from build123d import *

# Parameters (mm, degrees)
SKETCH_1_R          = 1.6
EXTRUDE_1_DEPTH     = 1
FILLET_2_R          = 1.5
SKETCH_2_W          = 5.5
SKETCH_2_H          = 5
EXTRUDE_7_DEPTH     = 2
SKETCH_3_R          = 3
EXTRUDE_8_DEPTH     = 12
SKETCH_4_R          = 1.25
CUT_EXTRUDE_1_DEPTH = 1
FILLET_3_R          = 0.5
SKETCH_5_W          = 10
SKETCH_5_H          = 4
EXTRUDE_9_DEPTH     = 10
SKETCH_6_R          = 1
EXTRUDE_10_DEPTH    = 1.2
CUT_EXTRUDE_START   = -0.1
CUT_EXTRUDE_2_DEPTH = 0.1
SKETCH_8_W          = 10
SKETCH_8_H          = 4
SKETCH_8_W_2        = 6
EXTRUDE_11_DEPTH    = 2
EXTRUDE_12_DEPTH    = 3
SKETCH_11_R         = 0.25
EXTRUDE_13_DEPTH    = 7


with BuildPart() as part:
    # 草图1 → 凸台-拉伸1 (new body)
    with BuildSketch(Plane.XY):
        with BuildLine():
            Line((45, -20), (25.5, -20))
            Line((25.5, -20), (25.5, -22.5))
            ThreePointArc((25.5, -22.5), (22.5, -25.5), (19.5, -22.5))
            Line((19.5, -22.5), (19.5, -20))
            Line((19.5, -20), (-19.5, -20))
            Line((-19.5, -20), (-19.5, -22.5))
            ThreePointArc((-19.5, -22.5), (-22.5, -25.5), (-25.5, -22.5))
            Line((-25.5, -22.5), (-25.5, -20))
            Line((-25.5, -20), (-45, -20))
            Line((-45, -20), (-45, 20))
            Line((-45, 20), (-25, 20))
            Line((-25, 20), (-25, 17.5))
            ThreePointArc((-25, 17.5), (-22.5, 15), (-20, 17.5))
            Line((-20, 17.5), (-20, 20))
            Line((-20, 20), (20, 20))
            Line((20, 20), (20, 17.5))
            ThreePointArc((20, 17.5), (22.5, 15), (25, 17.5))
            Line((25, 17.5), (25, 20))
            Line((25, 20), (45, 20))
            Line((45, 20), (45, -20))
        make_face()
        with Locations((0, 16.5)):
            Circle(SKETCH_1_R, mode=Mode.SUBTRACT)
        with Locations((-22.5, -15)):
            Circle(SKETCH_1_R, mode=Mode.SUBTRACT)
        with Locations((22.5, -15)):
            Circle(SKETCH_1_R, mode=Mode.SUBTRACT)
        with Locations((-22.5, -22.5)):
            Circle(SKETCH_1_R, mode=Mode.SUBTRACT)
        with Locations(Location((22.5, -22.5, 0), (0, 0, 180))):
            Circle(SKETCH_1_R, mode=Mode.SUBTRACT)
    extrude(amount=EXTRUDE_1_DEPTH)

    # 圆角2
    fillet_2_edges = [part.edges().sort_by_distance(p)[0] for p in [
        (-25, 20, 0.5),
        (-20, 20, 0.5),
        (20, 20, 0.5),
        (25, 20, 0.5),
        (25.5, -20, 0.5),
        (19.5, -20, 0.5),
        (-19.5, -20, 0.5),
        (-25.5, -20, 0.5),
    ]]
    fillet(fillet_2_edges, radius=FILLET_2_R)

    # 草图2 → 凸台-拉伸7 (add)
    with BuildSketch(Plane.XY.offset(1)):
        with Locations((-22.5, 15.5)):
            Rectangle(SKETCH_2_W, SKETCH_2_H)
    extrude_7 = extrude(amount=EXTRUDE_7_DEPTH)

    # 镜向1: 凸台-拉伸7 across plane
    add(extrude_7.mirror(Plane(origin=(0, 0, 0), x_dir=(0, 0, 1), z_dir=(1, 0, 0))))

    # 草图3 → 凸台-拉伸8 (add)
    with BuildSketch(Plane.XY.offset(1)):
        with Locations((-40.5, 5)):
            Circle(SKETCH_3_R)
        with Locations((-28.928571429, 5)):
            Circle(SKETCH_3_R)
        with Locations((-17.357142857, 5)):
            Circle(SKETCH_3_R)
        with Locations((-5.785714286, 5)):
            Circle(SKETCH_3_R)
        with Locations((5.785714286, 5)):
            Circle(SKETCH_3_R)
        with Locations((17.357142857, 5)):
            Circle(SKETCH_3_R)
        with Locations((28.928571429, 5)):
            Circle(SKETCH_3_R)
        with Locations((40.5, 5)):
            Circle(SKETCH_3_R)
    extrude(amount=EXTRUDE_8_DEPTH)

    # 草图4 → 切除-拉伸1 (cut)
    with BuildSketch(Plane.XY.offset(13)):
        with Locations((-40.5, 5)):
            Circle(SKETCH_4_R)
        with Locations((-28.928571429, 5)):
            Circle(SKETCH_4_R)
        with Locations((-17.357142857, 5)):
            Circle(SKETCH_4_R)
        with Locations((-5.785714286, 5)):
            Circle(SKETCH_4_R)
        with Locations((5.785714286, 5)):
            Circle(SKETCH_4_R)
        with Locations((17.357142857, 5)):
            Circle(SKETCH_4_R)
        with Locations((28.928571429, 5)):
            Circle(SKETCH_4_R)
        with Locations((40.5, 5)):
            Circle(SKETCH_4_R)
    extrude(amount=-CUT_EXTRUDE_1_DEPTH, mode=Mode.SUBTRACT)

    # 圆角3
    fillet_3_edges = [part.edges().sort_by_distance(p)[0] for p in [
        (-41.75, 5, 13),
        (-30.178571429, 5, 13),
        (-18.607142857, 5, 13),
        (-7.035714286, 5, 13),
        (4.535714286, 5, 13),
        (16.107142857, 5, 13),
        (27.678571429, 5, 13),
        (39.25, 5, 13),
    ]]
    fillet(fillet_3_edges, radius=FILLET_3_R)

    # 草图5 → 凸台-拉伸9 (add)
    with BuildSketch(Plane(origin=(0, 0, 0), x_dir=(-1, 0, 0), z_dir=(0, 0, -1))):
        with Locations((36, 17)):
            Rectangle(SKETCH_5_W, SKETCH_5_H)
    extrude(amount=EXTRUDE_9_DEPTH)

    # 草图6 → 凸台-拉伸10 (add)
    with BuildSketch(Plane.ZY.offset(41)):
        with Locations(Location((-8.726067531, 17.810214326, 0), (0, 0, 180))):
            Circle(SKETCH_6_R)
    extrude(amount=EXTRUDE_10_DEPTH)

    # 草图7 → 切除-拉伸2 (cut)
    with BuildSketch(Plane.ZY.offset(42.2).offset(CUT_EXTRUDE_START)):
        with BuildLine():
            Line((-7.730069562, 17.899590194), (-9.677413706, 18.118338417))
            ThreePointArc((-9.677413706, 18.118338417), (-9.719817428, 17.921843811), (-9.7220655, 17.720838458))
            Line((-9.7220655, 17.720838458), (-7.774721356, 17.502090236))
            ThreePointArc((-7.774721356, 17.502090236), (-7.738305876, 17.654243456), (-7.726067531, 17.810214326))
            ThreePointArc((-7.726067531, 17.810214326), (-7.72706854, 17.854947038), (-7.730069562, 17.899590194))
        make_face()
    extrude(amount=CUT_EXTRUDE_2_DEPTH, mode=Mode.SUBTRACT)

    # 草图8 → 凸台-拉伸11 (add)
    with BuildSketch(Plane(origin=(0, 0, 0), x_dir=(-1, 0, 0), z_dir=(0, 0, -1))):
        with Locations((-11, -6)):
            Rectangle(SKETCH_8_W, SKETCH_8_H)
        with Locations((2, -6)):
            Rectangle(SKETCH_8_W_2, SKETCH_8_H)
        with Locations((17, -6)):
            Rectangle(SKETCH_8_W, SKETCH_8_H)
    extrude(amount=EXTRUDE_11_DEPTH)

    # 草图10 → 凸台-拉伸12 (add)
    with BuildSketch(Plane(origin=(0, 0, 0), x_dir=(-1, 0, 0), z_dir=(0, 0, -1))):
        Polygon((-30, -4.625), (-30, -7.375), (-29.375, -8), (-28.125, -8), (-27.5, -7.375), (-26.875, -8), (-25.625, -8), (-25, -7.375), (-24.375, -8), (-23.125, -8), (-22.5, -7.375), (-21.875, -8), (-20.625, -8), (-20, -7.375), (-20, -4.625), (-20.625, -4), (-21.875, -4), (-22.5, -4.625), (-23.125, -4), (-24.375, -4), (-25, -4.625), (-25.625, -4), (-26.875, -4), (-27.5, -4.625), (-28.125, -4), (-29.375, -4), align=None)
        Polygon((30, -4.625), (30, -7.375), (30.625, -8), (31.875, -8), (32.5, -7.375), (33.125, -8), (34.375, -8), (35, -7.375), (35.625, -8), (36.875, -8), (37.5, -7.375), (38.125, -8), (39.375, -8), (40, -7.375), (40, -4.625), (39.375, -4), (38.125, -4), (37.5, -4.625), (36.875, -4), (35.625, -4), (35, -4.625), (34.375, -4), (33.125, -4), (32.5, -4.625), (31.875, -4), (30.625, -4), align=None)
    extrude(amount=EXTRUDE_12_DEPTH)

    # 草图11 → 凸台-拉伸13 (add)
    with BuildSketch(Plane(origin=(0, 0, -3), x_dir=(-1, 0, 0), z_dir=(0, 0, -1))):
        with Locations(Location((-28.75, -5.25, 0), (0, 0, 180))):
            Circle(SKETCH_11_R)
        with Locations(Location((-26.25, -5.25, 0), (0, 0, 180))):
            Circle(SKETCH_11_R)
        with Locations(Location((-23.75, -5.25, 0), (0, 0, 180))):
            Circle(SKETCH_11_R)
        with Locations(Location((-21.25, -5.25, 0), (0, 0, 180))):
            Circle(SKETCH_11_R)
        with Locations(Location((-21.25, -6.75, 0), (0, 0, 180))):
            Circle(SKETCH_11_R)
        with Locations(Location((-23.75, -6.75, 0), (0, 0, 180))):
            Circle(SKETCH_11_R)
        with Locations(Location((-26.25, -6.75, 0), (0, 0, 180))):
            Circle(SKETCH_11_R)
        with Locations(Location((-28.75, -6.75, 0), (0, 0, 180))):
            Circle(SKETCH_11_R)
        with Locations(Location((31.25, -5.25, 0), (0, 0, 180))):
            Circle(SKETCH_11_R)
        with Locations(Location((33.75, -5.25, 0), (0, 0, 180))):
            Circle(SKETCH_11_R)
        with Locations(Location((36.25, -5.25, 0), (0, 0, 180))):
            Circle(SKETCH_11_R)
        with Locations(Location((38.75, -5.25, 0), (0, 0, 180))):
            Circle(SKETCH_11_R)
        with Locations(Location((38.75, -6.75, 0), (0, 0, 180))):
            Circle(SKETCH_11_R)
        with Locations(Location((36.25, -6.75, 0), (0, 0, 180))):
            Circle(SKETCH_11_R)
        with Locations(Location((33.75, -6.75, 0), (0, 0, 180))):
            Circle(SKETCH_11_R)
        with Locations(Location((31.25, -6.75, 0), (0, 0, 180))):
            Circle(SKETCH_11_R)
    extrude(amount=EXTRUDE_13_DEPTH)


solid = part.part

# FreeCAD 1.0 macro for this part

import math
import FreeCAD as App
import Part
import Sketcher

V = App.Vector
Q = App.Units.Quantity


def edges_at(feature, points):
    """Names of the edges that pass closest to the given points."""
    edges = feature.Shape.Edges
    near = lambda p: min(range(len(edges)), key=lambda i: edges[i].distToShape(Part.Vertex(*p))[0])
    return sorted({f"Edge{near(p) + 1}" for p in points})

doc = App.newDocument("Part")
body = doc.addObject("PartDesign::Body", "Body")

# Sketch on XY plane
sketch1 = doc.addObject("Sketcher::SketchObject", "Sketch")
body.addObject(sketch1)
sketch1.AttachmentSupport = (doc.XY_Plane, [""])
sketch1.MapMode = "FlatFace"
sketch1.addGeometry(Part.LineSegment(V(25.5, -20, 0), V(45, -20, 0)), False)
sketch1.addGeometry(Part.LineSegment(V(45, -20, 0), V(45, 20, 0)), False)
sketch1.addGeometry(Part.LineSegment(V(45, 20, 0), V(25, 20, 0)), False)
sketch1.addGeometry(Part.LineSegment(V(25, 20, 0), V(25, 17.5, 0)), False)
sketch1.addGeometry(Part.ArcOfCircle(Part.Circle(V(22.5, 17.5, 0), V(0, 0, 1), 2.5), math.radians(180), math.radians(360)), False)
sketch1.addGeometry(Part.LineSegment(V(20, 17.5, 0), V(20, 20, 0)), False)
sketch1.addGeometry(Part.LineSegment(V(20, 20, 0), V(-20, 20, 0)), False)
sketch1.addGeometry(Part.LineSegment(V(-20, 20, 0), V(-20, 17.5, 0)), False)
sketch1.addGeometry(Part.ArcOfCircle(Part.Circle(V(-22.5, 17.5, 0), V(0, 0, 1), 2.5), math.radians(180), math.radians(360)), False)
sketch1.addGeometry(Part.LineSegment(V(-25, 17.5, 0), V(-25, 20, 0)), False)
sketch1.addGeometry(Part.LineSegment(V(-25, 20, 0), V(-45, 20, 0)), False)
sketch1.addGeometry(Part.LineSegment(V(-45, 20, 0), V(-45, -20, 0)), False)
sketch1.addGeometry(Part.LineSegment(V(-45, -20, 0), V(-25.5, -20, 0)), False)
sketch1.addGeometry(Part.LineSegment(V(-25.5, -20, 0), V(-25.5, -22.5, 0)), False)
sketch1.addGeometry(Part.ArcOfCircle(Part.Circle(V(-22.5, -22.5, 0), V(0, 0, 1), 3), math.radians(180), math.radians(360)), False)
sketch1.addGeometry(Part.LineSegment(V(-19.5, -22.5, 0), V(-19.5, -20, 0)), False)
sketch1.addGeometry(Part.LineSegment(V(-19.5, -20, 0), V(19.5, -20, 0)), False)
sketch1.addGeometry(Part.LineSegment(V(19.5, -20, 0), V(19.5, -22.5, 0)), False)
sketch1.addGeometry(Part.ArcOfCircle(Part.Circle(V(22.5, -22.5, 0), V(0, 0, 1), 3), math.radians(180), math.radians(360)), False)
sketch1.addGeometry(Part.LineSegment(V(25.5, -22.5, 0), V(25.5, -20, 0)), False)
sketch1.addGeometry(Part.Circle(V(22.5, -22.5, 0), V(0, 0, 1), 1.6), False)
sketch1.addGeometry(Part.Circle(V(22.5, -15, 0), V(0, 0, 1), 1.6), False)
sketch1.addGeometry(Part.Circle(V(-22.5, -22.5, 0), V(0, 0, 1), 1.6), False)
sketch1.addGeometry(Part.Circle(V(-22.5, -15, 0), V(0, 0, 1), 1.6), False)
sketch1.addGeometry(Part.Circle(V(0, 16.5, 0), V(0, 0, 1), 1.6), False)
sketch1.addConstraint(Sketcher.Constraint("Coincident", 0, 2, 1, 1))
sketch1.addConstraint(Sketcher.Constraint("Coincident", 1, 2, 2, 1))
sketch1.addConstraint(Sketcher.Constraint("Coincident", 2, 2, 3, 1))
sketch1.addConstraint(Sketcher.Constraint("Tangent", 3, 2, 4, 2))
sketch1.addConstraint(Sketcher.Constraint("Tangent", 4, 1, 5, 1))
sketch1.addConstraint(Sketcher.Constraint("Coincident", 5, 2, 6, 1))
sketch1.addConstraint(Sketcher.Constraint("Coincident", 6, 2, 7, 1))
sketch1.addConstraint(Sketcher.Constraint("Tangent", 7, 2, 8, 2))
sketch1.addConstraint(Sketcher.Constraint("Tangent", 8, 1, 9, 1))
sketch1.addConstraint(Sketcher.Constraint("Coincident", 9, 2, 10, 1))
sketch1.addConstraint(Sketcher.Constraint("Coincident", 10, 2, 11, 1))
sketch1.addConstraint(Sketcher.Constraint("Coincident", 11, 2, 12, 1))
sketch1.addConstraint(Sketcher.Constraint("Coincident", 12, 2, 13, 1))
sketch1.addConstraint(Sketcher.Constraint("Tangent", 13, 2, 14, 1))
sketch1.addConstraint(Sketcher.Constraint("Tangent", 14, 2, 15, 1))
sketch1.addConstraint(Sketcher.Constraint("Coincident", 15, 2, 16, 1))
sketch1.addConstraint(Sketcher.Constraint("Coincident", 16, 2, 17, 1))
sketch1.addConstraint(Sketcher.Constraint("Tangent", 17, 2, 18, 1))
sketch1.addConstraint(Sketcher.Constraint("Tangent", 18, 2, 19, 1))
sketch1.addConstraint(Sketcher.Constraint("Coincident", 19, 2, 0, 1))
sketch1.addConstraint(Sketcher.Constraint("Horizontal", 0))
sketch1.addConstraint(Sketcher.Constraint("Vertical", 1))
sketch1.addConstraint(Sketcher.Constraint("Horizontal", 2))
sketch1.addConstraint(Sketcher.Constraint("Vertical", 3))
sketch1.addConstraint(Sketcher.Constraint("Vertical", 5))
sketch1.addConstraint(Sketcher.Constraint("Horizontal", 6))
sketch1.addConstraint(Sketcher.Constraint("Vertical", 7))
sketch1.addConstraint(Sketcher.Constraint("Vertical", 9))
sketch1.addConstraint(Sketcher.Constraint("Horizontal", 10))
sketch1.addConstraint(Sketcher.Constraint("Vertical", 11))
sketch1.addConstraint(Sketcher.Constraint("Horizontal", 12))
sketch1.addConstraint(Sketcher.Constraint("Vertical", 13))
sketch1.addConstraint(Sketcher.Constraint("Vertical", 15))
sketch1.addConstraint(Sketcher.Constraint("Horizontal", 16))
sketch1.addConstraint(Sketcher.Constraint("Vertical", 17))
sketch1.addConstraint(Sketcher.Constraint("Vertical", 19))
sketch1.addConstraint(Sketcher.Constraint("Coincident", 20, 3, 18, 3))
sketch1.addConstraint(Sketcher.Constraint("Coincident", 22, 3, 14, 3))
sketch1.addConstraint(Sketcher.Constraint("Equal", 4, 8))
sketch1.addConstraint(Sketcher.Constraint("Equal", 14, 18))
sketch1.addConstraint(Sketcher.Constraint("Equal", 20, 21))
sketch1.addConstraint(Sketcher.Constraint("Equal", 21, 22))
sketch1.addConstraint(Sketcher.Constraint("Equal", 22, 23))
sketch1.addConstraint(Sketcher.Constraint("Equal", 23, 24))
sketch1.addConstraint(Sketcher.Constraint("Symmetric", 0, 2, 10, 2, -1, 1))
sketch1.addConstraint(Sketcher.Constraint("Symmetric", 4, 3, 8, 3, -2))
sketch1.addConstraint(Sketcher.Constraint("Symmetric", 14, 3, 18, 3, -2))
sketch1.addConstraint(Sketcher.Constraint("Symmetric", 21, 3, 23, 3, -2))
sketch1.addConstraint(Sketcher.Constraint("PointOnObject", 24, 3, -2))
sketch1.addConstraint(Sketcher.Constraint("Horizontal", 2, 2, 5, 2))
sketch1.addConstraint(Sketcher.Constraint("Horizontal", 6, 2, 9, 2))
sketch1.addConstraint(Sketcher.Constraint("Horizontal", 0, 2, 11, 2))
sketch1.addConstraint(Sketcher.Constraint("Horizontal", 12, 2, 15, 2))
sketch1.addConstraint(Sketcher.Constraint("Vertical", 8, 3, 14, 3))
sketch1.addConstraint(Sketcher.Constraint("Vertical", 20, 3, 21, 3))
sketch1.addConstraint(Sketcher.Constraint("Equal", 6, 1))
sketch1.addConstraint(Sketcher.Constraint("Equal", 9, 13))
sketch1.addConstraint(Sketcher.Constraint("Radius", 14, Q("3 mm")))
sketch1.addConstraint(Sketcher.Constraint("Diameter", 20, Q("3.2 mm")))
sketch1.addConstraint(Sketcher.Constraint("Radius", 4, Q("2.5 mm")))
sketch1.addConstraint(Sketcher.Constraint("DistanceX", 2, 2, 2, 1, Q("20 mm")))
sketch1.addConstraint(Sketcher.Constraint("DistanceX", 6, 2, 6, 1, Q("40 mm")))
sketch1.addConstraint(Sketcher.Constraint("DistanceY", 3, 2, 3, 1, Q("2.5 mm")))
sketch1.addConstraint(Sketcher.Constraint("DistanceY", 21, 3, -1, 1, Q("15 mm")))
sketch1.addConstraint(Sketcher.Constraint("DistanceY", 24, 3, 4, 3, Q("1 mm")))
pad1 = doc.addObject("PartDesign::Pad", "Pad")
body.addObject(pad1)
pad1.Profile = sketch1
pad1.Length = 1
doc.recompute()

fillet = doc.addObject("PartDesign::Fillet", "Fillet")
body.addObject(fillet)
fillet.Base = (pad1, edges_at(pad1, [
    (-25, 20, 0.5),
    (-20, 20, 0.5),
    (20, 20, 0.5),
    (25, 20, 0.5),
    (25.5, -20, 0.5),
    (19.5, -20, 0.5),
    (-19.5, -20, 0.5),
    (-25.5, -20, 0.5),
]))
fillet.Radius = 1.5

# Sketch on XY plane
sketch2 = doc.addObject("Sketcher::SketchObject", "Sketch001")
body.addObject(sketch2)
sketch2.AttachmentSupport = (doc.XY_Plane, [""])
sketch2.MapMode = "FlatFace"
sketch2.AttachmentOffset = App.Placement(V(0, 0, 1), App.Rotation())
sketch2.addGeometry(Part.LineSegment(V(-25, 18, 0), V(-25, 13, 0)), False)
sketch2.addGeometry(Part.LineSegment(V(-25, 13, 0), V(-20, 13, 0)), False)
sketch2.addGeometry(Part.LineSegment(V(-20, 13, 0), V(-20, 18, 0)), False)
sketch2.addGeometry(Part.LineSegment(V(-20, 18, 0), V(-25, 18, 0)), False)
sketch2.addConstraint(Sketcher.Constraint("Coincident", 0, 2, 1, 1))
sketch2.addConstraint(Sketcher.Constraint("Coincident", 1, 2, 2, 1))
sketch2.addConstraint(Sketcher.Constraint("Coincident", 2, 2, 3, 1))
sketch2.addConstraint(Sketcher.Constraint("Coincident", 3, 2, 0, 1))
sketch2.addConstraint(Sketcher.Constraint("Vertical", 0))
sketch2.addConstraint(Sketcher.Constraint("Horizontal", 1))
sketch2.addConstraint(Sketcher.Constraint("Vertical", 2))
sketch2.addConstraint(Sketcher.Constraint("Horizontal", 3))
sketch2.addConstraint(Sketcher.Constraint("DistanceY", 0, 2, 0, 1, Q("5 mm")))
sketch2.addConstraint(Sketcher.Constraint("DistanceX", 1, 1, 1, 2, Q("5.5 mm")))
sketch2.addConstraint(Sketcher.Constraint("DistanceY", -1, 1, 0, 2, Q("13 mm")))
sketch2.addConstraint(Sketcher.Constraint("DistanceX", 0, 2, -1, 1, Q("25.25 mm")))
pad2 = doc.addObject("PartDesign::Pad", "Pad001")
body.addObject(pad2)
pad2.Profile = sketch2
pad2.Length = 2
doc.recompute()

mirrored = doc.addObject("PartDesign::Mirrored", "Mirrored")
body.addObject(mirrored)
mirrored.Originals = [pad2]
mirrored.MirrorPlane = (doc.YZ_Plane, [""])
body.Tip = mirrored

# Sketch on XY plane
sketch3 = doc.addObject("Sketcher::SketchObject", "Sketch002")
body.addObject(sketch3)
sketch3.AttachmentSupport = (doc.XY_Plane, [""])
sketch3.MapMode = "FlatFace"
sketch3.AttachmentOffset = App.Placement(V(0, 0, 1), App.Rotation())
sketch3.addGeometry(Part.Circle(V(-40.5, 5, 0), V(0, 0, 1), 3), False)
sketch3.addGeometry(Part.Circle(V(-28.9, 5, 0), V(0, 0, 1), 3), False)
sketch3.addGeometry(Part.Circle(V(-17.4, 5, 0), V(0, 0, 1), 3), False)
sketch3.addGeometry(Part.Circle(V(-5.8, 5, 0), V(0, 0, 1), 3), False)
sketch3.addGeometry(Part.Circle(V(5.8, 5, 0), V(0, 0, 1), 3), False)
sketch3.addGeometry(Part.Circle(V(17.4, 5, 0), V(0, 0, 1), 3), False)
sketch3.addGeometry(Part.Circle(V(28.9, 5, 0), V(0, 0, 1), 3), False)
sketch3.addGeometry(Part.Circle(V(40.5, 5, 0), V(0, 0, 1), 3), False)
sketch3.addConstraint(Sketcher.Constraint("Equal", 0, 1))
sketch3.addConstraint(Sketcher.Constraint("Equal", 1, 2))
sketch3.addConstraint(Sketcher.Constraint("Equal", 2, 3))
sketch3.addConstraint(Sketcher.Constraint("Equal", 3, 4))
sketch3.addConstraint(Sketcher.Constraint("Equal", 4, 5))
sketch3.addConstraint(Sketcher.Constraint("Equal", 5, 6))
sketch3.addConstraint(Sketcher.Constraint("Equal", 6, 7))
sketch3.addConstraint(Sketcher.Constraint("Symmetric", 3, 3, 4, 3, -2))
sketch3.addConstraint(Sketcher.Constraint("Symmetric", 2, 3, 5, 3, -2))
sketch3.addConstraint(Sketcher.Constraint("Symmetric", 1, 3, 6, 3, -2))
sketch3.addConstraint(Sketcher.Constraint("Symmetric", 0, 3, 7, 3, -2))
sketch3.addConstraint(Sketcher.Constraint("Horizontal", 0, 3, 1, 3))
sketch3.addConstraint(Sketcher.Constraint("Horizontal", 1, 3, 2, 3))
sketch3.addConstraint(Sketcher.Constraint("Horizontal", 2, 3, 3, 3))
sketch3.addConstraint(Sketcher.Constraint("Diameter", 0, Q("6 mm")))
sketch3.addConstraint(Sketcher.Constraint("DistanceY", -1, 1, 0, 3, Q("5 mm")))
sketch3.addConstraint(Sketcher.Constraint("DistanceX", 0, 3, -1, 1, Q("40.5 mm")))
sketch3.addConstraint(Sketcher.Constraint("DistanceX", 1, 3, -1, 1, Q("28.928571 mm")))
sketch3.addConstraint(Sketcher.Constraint("DistanceX", 1, 3, 2, 3, Q("11.571429 mm")))
sketch3.addConstraint(Sketcher.Constraint("DistanceX", 2, 3, 3, 3, Q("11.571429 mm")))
pad3 = doc.addObject("PartDesign::Pad", "Pad002")
body.addObject(pad3)
pad3.Profile = sketch3
pad3.Length = 12

# Sketch on XY plane
sketch4 = doc.addObject("Sketcher::SketchObject", "Sketch003")
body.addObject(sketch4)
sketch4.AttachmentSupport = (doc.XY_Plane, [""])
sketch4.MapMode = "FlatFace"
sketch4.AttachmentOffset = App.Placement(V(0, 0, 13), App.Rotation())
sketch4.addGeometry(Part.Circle(V(-40.5, 5, 0), V(0, 0, 1), 1.2), False)
sketch4.addGeometry(Part.Circle(V(-28.9, 5, 0), V(0, 0, 1), 1.2), False)
sketch4.addGeometry(Part.Circle(V(-17.4, 5, 0), V(0, 0, 1), 1.2), False)
sketch4.addGeometry(Part.Circle(V(-5.8, 5, 0), V(0, 0, 1), 1.2), False)
sketch4.addGeometry(Part.Circle(V(5.8, 5, 0), V(0, 0, 1), 1.2), False)
sketch4.addGeometry(Part.Circle(V(17.4, 5, 0), V(0, 0, 1), 1.2), False)
sketch4.addGeometry(Part.Circle(V(28.9, 5, 0), V(0, 0, 1), 1.2), False)
sketch4.addGeometry(Part.Circle(V(40.5, 5, 0), V(0, 0, 1), 1.2), False)
sketch4.addConstraint(Sketcher.Constraint("Equal", 0, 1))
sketch4.addConstraint(Sketcher.Constraint("Equal", 1, 2))
sketch4.addConstraint(Sketcher.Constraint("Equal", 2, 3))
sketch4.addConstraint(Sketcher.Constraint("Equal", 3, 4))
sketch4.addConstraint(Sketcher.Constraint("Equal", 4, 5))
sketch4.addConstraint(Sketcher.Constraint("Equal", 5, 6))
sketch4.addConstraint(Sketcher.Constraint("Equal", 6, 7))
sketch4.addConstraint(Sketcher.Constraint("Symmetric", 3, 3, 4, 3, -2))
sketch4.addConstraint(Sketcher.Constraint("Symmetric", 2, 3, 5, 3, -2))
sketch4.addConstraint(Sketcher.Constraint("Symmetric", 1, 3, 6, 3, -2))
sketch4.addConstraint(Sketcher.Constraint("Symmetric", 0, 3, 7, 3, -2))
sketch4.addConstraint(Sketcher.Constraint("Horizontal", 0, 3, 1, 3))
sketch4.addConstraint(Sketcher.Constraint("Horizontal", 1, 3, 2, 3))
sketch4.addConstraint(Sketcher.Constraint("Horizontal", 2, 3, 3, 3))
sketch4.addConstraint(Sketcher.Constraint("Diameter", 0, Q("2.5 mm")))
sketch4.addConstraint(Sketcher.Constraint("DistanceY", -1, 1, 0, 3, Q("5 mm")))
sketch4.addConstraint(Sketcher.Constraint("DistanceX", 0, 3, -1, 1, Q("40.5 mm")))
sketch4.addConstraint(Sketcher.Constraint("DistanceX", 1, 3, -1, 1, Q("28.928571 mm")))
sketch4.addConstraint(Sketcher.Constraint("DistanceX", 1, 3, 2, 3, Q("11.571429 mm")))
sketch4.addConstraint(Sketcher.Constraint("DistanceX", 2, 3, 3, 3, Q("11.571429 mm")))
pocket1 = doc.addObject("PartDesign::Pocket", "Pocket")
body.addObject(pocket1)
pocket1.Profile = sketch4
pocket1.Length = 1
doc.recompute()

fillet2 = doc.addObject("PartDesign::Fillet", "Fillet001")
body.addObject(fillet2)
fillet2.Base = (pocket1, edges_at(pocket1, [
    (-41.75, 5, 13),
    (-30.179, 5, 13),
    (-18.607, 5, 13),
    (-7.036, 5, 13),
    (4.536, 5, 13),
    (16.107, 5, 13),
    (27.679, 5, 13),
    (39.25, 5, 13),
]))
fillet2.Radius = 0.5

# Sketch on XY plane
sketch5 = doc.addObject("Sketcher::SketchObject", "Sketch004")
body.addObject(sketch5)
sketch5.AttachmentSupport = (doc.XY_Plane, [""])
sketch5.MapMode = "FlatFace"
sketch5.addGeometry(Part.LineSegment(V(-31, 19, 0), V(-31, 15, 0)), False)
sketch5.addGeometry(Part.LineSegment(V(-31, 15, 0), V(-41, 15, 0)), False)
sketch5.addGeometry(Part.LineSegment(V(-41, 15, 0), V(-41, 19, 0)), False)
sketch5.addGeometry(Part.LineSegment(V(-41, 19, 0), V(-31, 19, 0)), False)
sketch5.addConstraint(Sketcher.Constraint("Coincident", 0, 2, 1, 1))
sketch5.addConstraint(Sketcher.Constraint("Coincident", 1, 2, 2, 1))
sketch5.addConstraint(Sketcher.Constraint("Coincident", 2, 2, 3, 1))
sketch5.addConstraint(Sketcher.Constraint("Coincident", 3, 2, 0, 1))
sketch5.addConstraint(Sketcher.Constraint("Vertical", 0))
sketch5.addConstraint(Sketcher.Constraint("Horizontal", 1))
sketch5.addConstraint(Sketcher.Constraint("Vertical", 2))
sketch5.addConstraint(Sketcher.Constraint("Horizontal", 3))
sketch5.addConstraint(Sketcher.Constraint("DistanceX", 1, 2, 1, 1, Q("10 mm")))
sketch5.addConstraint(Sketcher.Constraint("DistanceY", 0, 2, 0, 1, Q("4 mm")))
sketch5.addConstraint(Sketcher.Constraint("DistanceX", 0, 2, -1, 1, Q("31 mm")))
sketch5.addConstraint(Sketcher.Constraint("DistanceY", -1, 1, 0, 2, Q("15 mm")))
pad4 = doc.addObject("PartDesign::Pad", "Pad003")
body.addObject(pad4)
pad4.Profile = sketch5
pad4.Length = 10
pad4.Reversed = True

# Sketch on YZ plane
sketch6 = doc.addObject("Sketcher::SketchObject", "Sketch005")
body.addObject(sketch6)
sketch6.AttachmentSupport = (doc.YZ_Plane, [""])
sketch6.MapMode = "FlatFace"
sketch6.AttachmentOffset = App.Placement(V(0, 0, -41), App.Rotation())
sketch6.addGeometry(Part.Circle(V(17.8, -8.7, 0), V(0, 0, 1), 1), False)
sketch6.addConstraint(Sketcher.Constraint("Diameter", 0, Q("2 mm")))
sketch6.addConstraint(Sketcher.Constraint("DistanceX", -1, 1, 0, 3, Q("17.810214 mm")))
sketch6.addConstraint(Sketcher.Constraint("DistanceY", 0, 3, -1, 1, Q("8.726068 mm")))
pad5 = doc.addObject("PartDesign::Pad", "Pad004")
body.addObject(pad5)
pad5.Profile = sketch6
pad5.Length = 1.2
pad5.Reversed = True

# Sketch on YZ plane
sketch7 = doc.addObject("Sketcher::SketchObject", "Sketch006")
body.addObject(sketch7)
sketch7.AttachmentSupport = (doc.YZ_Plane, [""])
sketch7.MapMode = "FlatFace"
sketch7.AttachmentOffset = App.Placement(V(0, 0, -42.1), App.Rotation())
sketch7.addGeometry(Part.LineSegment(V(17.9, -7.73, 0), V(18.12, -9.68, 0)), False)
sketch7.addGeometry(Part.ArcOfCircle(Part.Circle(V(17.81, -8.73, 0), V(0, 0, 1), 1), math.radians(-95), math.radians(-72)), False)
sketch7.addGeometry(Part.LineSegment(V(17.72, -9.72, 0), V(17.5, -7.77, 0)), False)
sketch7.addGeometry(Part.ArcOfCircle(Part.Circle(V(17.81, -8.73, 0), V(0, 0, 1), 1), math.radians(90), math.radians(107.95)), False)
sketch7.addGeometry(Part.ArcOfCircle(Part.Circle(V(17.81, -8.73, 0), V(0, 0, 1), 1), math.radians(84.87), math.radians(90)), False)
sketch7.addConstraint(Sketcher.Constraint("Coincident", 0, 2, 1, 2))
sketch7.addConstraint(Sketcher.Constraint("Coincident", 1, 1, 2, 1))
sketch7.addConstraint(Sketcher.Constraint("Coincident", 2, 2, 3, 2))
sketch7.addConstraint(Sketcher.Constraint("Tangent", 3, 1, 4, 2))
sketch7.addConstraint(Sketcher.Constraint("Coincident", 4, 1, 0, 1))
sketch7.addConstraint(Sketcher.Constraint("Coincident", 3, 3, 1, 3))
sketch7.addConstraint(Sketcher.Constraint("Equal", 1, 3))
sketch7.addConstraint(Sketcher.Constraint("Equal", 3, 4))
sketch7.addConstraint(Sketcher.Constraint("Parallel", 0, 2))
sketch7.addConstraint(Sketcher.Constraint("Vertical", 4, 3, 3, 1))
sketch7.addConstraint(Sketcher.Constraint("Equal", 0, 2))
sketch7.addConstraint(Sketcher.Constraint("Radius", 1, Q("1 mm")))
sketch7.addConstraint(Sketcher.Constraint("DistanceY", 4, 3, 4, 1, Q("0.995998 mm")))
sketch7.addConstraint(Sketcher.Constraint("DistanceX", 1, 1, 0, 2, Q("0.3975 mm")))
sketch7.addConstraint(Sketcher.Constraint("DistanceX", -1, 1, 0, 2, Q("18.118338 mm")))
sketch7.addConstraint(Sketcher.Constraint("DistanceY", 2, 2, -1, 1, Q("7.774721 mm")))
pocket2 = doc.addObject("PartDesign::Pocket", "Pocket001")
body.addObject(pocket2)
pocket2.Profile = sketch7
pocket2.Length = 0.1

# Sketch on XY plane
sketch8 = doc.addObject("Sketcher::SketchObject", "Sketch007")
body.addObject(sketch8)
sketch8.AttachmentSupport = (doc.XY_Plane, [""])
sketch8.MapMode = "FlatFace"
sketch8.addGeometry(Part.LineSegment(V(16, -4, 0), V(16, -8, 0)), False)
sketch8.addGeometry(Part.LineSegment(V(16, -8, 0), V(6, -8, 0)), False)
sketch8.addGeometry(Part.LineSegment(V(6, -8, 0), V(6, -4, 0)), False)
sketch8.addGeometry(Part.LineSegment(V(6, -4, 0), V(16, -4, 0)), False)
sketch8.addGeometry(Part.LineSegment(V(1, -4, 0), V(1, -8, 0)), False)
sketch8.addGeometry(Part.LineSegment(V(1, -8, 0), V(-5, -8, 0)), False)
sketch8.addGeometry(Part.LineSegment(V(-5, -8, 0), V(-5, -4, 0)), False)
sketch8.addGeometry(Part.LineSegment(V(-5, -4, 0), V(1, -4, 0)), False)
sketch8.addGeometry(Part.LineSegment(V(-12, -4, 0), V(-12, -8, 0)), False)
sketch8.addGeometry(Part.LineSegment(V(-12, -8, 0), V(-22, -8, 0)), False)
sketch8.addGeometry(Part.LineSegment(V(-22, -8, 0), V(-22, -4, 0)), False)
sketch8.addGeometry(Part.LineSegment(V(-22, -4, 0), V(-12, -4, 0)), False)
sketch8.addConstraint(Sketcher.Constraint("Coincident", 0, 2, 1, 1))
sketch8.addConstraint(Sketcher.Constraint("Coincident", 1, 2, 2, 1))
sketch8.addConstraint(Sketcher.Constraint("Coincident", 2, 2, 3, 1))
sketch8.addConstraint(Sketcher.Constraint("Coincident", 3, 2, 0, 1))
sketch8.addConstraint(Sketcher.Constraint("Coincident", 4, 2, 5, 1))
sketch8.addConstraint(Sketcher.Constraint("Coincident", 5, 2, 6, 1))
sketch8.addConstraint(Sketcher.Constraint("Coincident", 6, 2, 7, 1))
sketch8.addConstraint(Sketcher.Constraint("Coincident", 7, 2, 4, 1))
sketch8.addConstraint(Sketcher.Constraint("Coincident", 8, 2, 9, 1))
sketch8.addConstraint(Sketcher.Constraint("Coincident", 9, 2, 10, 1))
sketch8.addConstraint(Sketcher.Constraint("Coincident", 10, 2, 11, 1))
sketch8.addConstraint(Sketcher.Constraint("Coincident", 11, 2, 8, 1))
sketch8.addConstraint(Sketcher.Constraint("Vertical", 0))
sketch8.addConstraint(Sketcher.Constraint("Horizontal", 1))
sketch8.addConstraint(Sketcher.Constraint("Vertical", 2))
sketch8.addConstraint(Sketcher.Constraint("Horizontal", 3))
sketch8.addConstraint(Sketcher.Constraint("Vertical", 4))
sketch8.addConstraint(Sketcher.Constraint("Horizontal", 5))
sketch8.addConstraint(Sketcher.Constraint("Vertical", 6))
sketch8.addConstraint(Sketcher.Constraint("Horizontal", 7))
sketch8.addConstraint(Sketcher.Constraint("Vertical", 8))
sketch8.addConstraint(Sketcher.Constraint("Horizontal", 9))
sketch8.addConstraint(Sketcher.Constraint("Vertical", 10))
sketch8.addConstraint(Sketcher.Constraint("Horizontal", 11))
sketch8.addConstraint(Sketcher.Constraint("Horizontal", 1, 2, 4, 2))
sketch8.addConstraint(Sketcher.Constraint("Horizontal", 3, 2, 6, 2))
sketch8.addConstraint(Sketcher.Constraint("Horizontal", 5, 2, 8, 2))
sketch8.addConstraint(Sketcher.Constraint("Horizontal", 7, 2, 10, 2))
sketch8.addConstraint(Sketcher.Constraint("Equal", 3, 9))
sketch8.addConstraint(Sketcher.Constraint("DistanceX", 1, 2, 1, 1, Q("10 mm")))
sketch8.addConstraint(Sketcher.Constraint("DistanceX", 5, 2, 5, 1, Q("6 mm")))
sketch8.addConstraint(Sketcher.Constraint("DistanceY", 0, 2, 0, 1, Q("4 mm")))
sketch8.addConstraint(Sketcher.Constraint("DistanceX", -1, 1, 0, 2, Q("16 mm")))
sketch8.addConstraint(Sketcher.Constraint("DistanceY", 0, 2, -1, 1, Q("8 mm")))
sketch8.addConstraint(Sketcher.Constraint("DistanceX", -1, 1, 4, 2, Q("1 mm")))
sketch8.addConstraint(Sketcher.Constraint("DistanceX", 8, 2, -1, 1, Q("12 mm")))
pad6 = doc.addObject("PartDesign::Pad", "Pad005")
body.addObject(pad6)
pad6.Profile = sketch8
pad6.Length = 2
pad6.Reversed = True

# Sketch on XY plane
sketch9 = doc.addObject("Sketcher::SketchObject", "Sketch008")
body.addObject(sketch9)
sketch9.AttachmentSupport = (doc.XY_Plane, [""])
sketch9.MapMode = "FlatFace"
sketch9.addGeometry(Part.LineSegment(V(30, -4.6, 0), V(30, -7.4, 0)), False)
sketch9.addGeometry(Part.LineSegment(V(30, -7.4, 0), V(29.4, -8, 0)), False)
sketch9.addGeometry(Part.LineSegment(V(29.4, -8, 0), V(28.1, -8, 0)), False)
sketch9.addGeometry(Part.LineSegment(V(28.1, -8, 0), V(27.5, -7.4, 0)), False)
sketch9.addGeometry(Part.LineSegment(V(27.5, -7.4, 0), V(26.9, -8, 0)), False)
sketch9.addGeometry(Part.LineSegment(V(26.9, -8, 0), V(25.6, -8, 0)), False)
sketch9.addGeometry(Part.LineSegment(V(25.6, -8, 0), V(25, -7.4, 0)), False)
sketch9.addGeometry(Part.LineSegment(V(25, -7.4, 0), V(24.4, -8, 0)), False)
sketch9.addGeometry(Part.LineSegment(V(24.4, -8, 0), V(23.1, -8, 0)), False)
sketch9.addGeometry(Part.LineSegment(V(23.1, -8, 0), V(22.5, -7.4, 0)), False)
sketch9.addGeometry(Part.LineSegment(V(22.5, -7.4, 0), V(21.9, -8, 0)), False)
sketch9.addGeometry(Part.LineSegment(V(21.9, -8, 0), V(20.6, -8, 0)), False)
sketch9.addGeometry(Part.LineSegment(V(20.6, -8, 0), V(20, -7.4, 0)), False)
sketch9.addGeometry(Part.LineSegment(V(20, -7.4, 0), V(20, -4.6, 0)), False)
sketch9.addGeometry(Part.LineSegment(V(20, -4.6, 0), V(20.6, -4, 0)), False)
sketch9.addGeometry(Part.LineSegment(V(20.6, -4, 0), V(21.9, -4, 0)), False)
sketch9.addGeometry(Part.LineSegment(V(21.9, -4, 0), V(22.5, -4.6, 0)), False)
sketch9.addGeometry(Part.LineSegment(V(22.5, -4.6, 0), V(23.1, -4, 0)), False)
sketch9.addGeometry(Part.LineSegment(V(23.1, -4, 0), V(24.4, -4, 0)), False)
sketch9.addGeometry(Part.LineSegment(V(24.4, -4, 0), V(25, -4.6, 0)), False)
sketch9.addGeometry(Part.LineSegment(V(25, -4.6, 0), V(25.6, -4, 0)), False)
sketch9.addGeometry(Part.LineSegment(V(25.6, -4, 0), V(26.9, -4, 0)), False)
sketch9.addGeometry(Part.LineSegment(V(26.9, -4, 0), V(27.5, -4.6, 0)), False)
sketch9.addGeometry(Part.LineSegment(V(27.5, -4.6, 0), V(28.1, -4, 0)), False)
sketch9.addGeometry(Part.LineSegment(V(28.1, -4, 0), V(29.4, -4, 0)), False)
sketch9.addGeometry(Part.LineSegment(V(29.4, -4, 0), V(30, -4.6, 0)), False)
sketch9.addGeometry(Part.LineSegment(V(-30, -4.6, 0), V(-30, -7.4, 0)), False)
sketch9.addGeometry(Part.LineSegment(V(-30, -7.4, 0), V(-30.6, -8, 0)), False)
sketch9.addGeometry(Part.LineSegment(V(-30.6, -8, 0), V(-31.9, -8, 0)), False)
sketch9.addGeometry(Part.LineSegment(V(-31.9, -8, 0), V(-32.5, -7.4, 0)), False)
sketch9.addGeometry(Part.LineSegment(V(-32.5, -7.4, 0), V(-33.1, -8, 0)), False)
sketch9.addGeometry(Part.LineSegment(V(-33.1, -8, 0), V(-34.4, -8, 0)), False)
sketch9.addGeometry(Part.LineSegment(V(-34.4, -8, 0), V(-35, -7.4, 0)), False)
sketch9.addGeometry(Part.LineSegment(V(-35, -7.4, 0), V(-35.6, -8, 0)), False)
sketch9.addGeometry(Part.LineSegment(V(-35.6, -8, 0), V(-36.9, -8, 0)), False)
sketch9.addGeometry(Part.LineSegment(V(-36.9, -8, 0), V(-37.5, -7.4, 0)), False)
sketch9.addGeometry(Part.LineSegment(V(-37.5, -7.4, 0), V(-38.1, -8, 0)), False)
sketch9.addGeometry(Part.LineSegment(V(-38.1, -8, 0), V(-39.4, -8, 0)), False)
sketch9.addGeometry(Part.LineSegment(V(-39.4, -8, 0), V(-40, -7.4, 0)), False)
sketch9.addGeometry(Part.LineSegment(V(-40, -7.4, 0), V(-40, -4.6, 0)), False)
sketch9.addGeometry(Part.LineSegment(V(-40, -4.6, 0), V(-39.4, -4, 0)), False)
sketch9.addGeometry(Part.LineSegment(V(-39.4, -4, 0), V(-38.1, -4, 0)), False)
sketch9.addGeometry(Part.LineSegment(V(-38.1, -4, 0), V(-37.5, -4.6, 0)), False)
sketch9.addGeometry(Part.LineSegment(V(-37.5, -4.6, 0), V(-36.9, -4, 0)), False)
sketch9.addGeometry(Part.LineSegment(V(-36.9, -4, 0), V(-35.6, -4, 0)), False)
sketch9.addGeometry(Part.LineSegment(V(-35.6, -4, 0), V(-35, -4.6, 0)), False)
sketch9.addGeometry(Part.LineSegment(V(-35, -4.6, 0), V(-34.4, -4, 0)), False)
sketch9.addGeometry(Part.LineSegment(V(-34.4, -4, 0), V(-33.1, -4, 0)), False)
sketch9.addGeometry(Part.LineSegment(V(-33.1, -4, 0), V(-32.5, -4.6, 0)), False)
sketch9.addGeometry(Part.LineSegment(V(-32.5, -4.6, 0), V(-31.9, -4, 0)), False)
sketch9.addGeometry(Part.LineSegment(V(-31.9, -4, 0), V(-30.6, -4, 0)), False)
sketch9.addGeometry(Part.LineSegment(V(-30.6, -4, 0), V(-30, -4.6, 0)), False)
sketch9.addConstraint(Sketcher.Constraint("Coincident", 0, 2, 1, 1))
sketch9.addConstraint(Sketcher.Constraint("Coincident", 1, 2, 2, 1))
sketch9.addConstraint(Sketcher.Constraint("Coincident", 2, 2, 3, 1))
sketch9.addConstraint(Sketcher.Constraint("Coincident", 3, 2, 4, 1))
sketch9.addConstraint(Sketcher.Constraint("Coincident", 4, 2, 5, 1))
sketch9.addConstraint(Sketcher.Constraint("Coincident", 5, 2, 6, 1))
sketch9.addConstraint(Sketcher.Constraint("Coincident", 6, 2, 7, 1))
sketch9.addConstraint(Sketcher.Constraint("Coincident", 7, 2, 8, 1))
sketch9.addConstraint(Sketcher.Constraint("Coincident", 8, 2, 9, 1))
sketch9.addConstraint(Sketcher.Constraint("Coincident", 9, 2, 10, 1))
sketch9.addConstraint(Sketcher.Constraint("Coincident", 10, 2, 11, 1))
sketch9.addConstraint(Sketcher.Constraint("Coincident", 11, 2, 12, 1))
sketch9.addConstraint(Sketcher.Constraint("Coincident", 12, 2, 13, 1))
sketch9.addConstraint(Sketcher.Constraint("Coincident", 13, 2, 14, 1))
sketch9.addConstraint(Sketcher.Constraint("Coincident", 14, 2, 15, 1))
sketch9.addConstraint(Sketcher.Constraint("Coincident", 15, 2, 16, 1))
sketch9.addConstraint(Sketcher.Constraint("Coincident", 16, 2, 17, 1))
sketch9.addConstraint(Sketcher.Constraint("Coincident", 17, 2, 18, 1))
sketch9.addConstraint(Sketcher.Constraint("Coincident", 18, 2, 19, 1))
sketch9.addConstraint(Sketcher.Constraint("Coincident", 19, 2, 20, 1))
sketch9.addConstraint(Sketcher.Constraint("Coincident", 20, 2, 21, 1))
sketch9.addConstraint(Sketcher.Constraint("Coincident", 21, 2, 22, 1))
sketch9.addConstraint(Sketcher.Constraint("Coincident", 22, 2, 23, 1))
sketch9.addConstraint(Sketcher.Constraint("Coincident", 23, 2, 24, 1))
sketch9.addConstraint(Sketcher.Constraint("Coincident", 24, 2, 25, 1))
sketch9.addConstraint(Sketcher.Constraint("Coincident", 25, 2, 0, 1))
sketch9.addConstraint(Sketcher.Constraint("Coincident", 26, 2, 27, 1))
sketch9.addConstraint(Sketcher.Constraint("Coincident", 27, 2, 28, 1))
sketch9.addConstraint(Sketcher.Constraint("Coincident", 28, 2, 29, 1))
sketch9.addConstraint(Sketcher.Constraint("Coincident", 29, 2, 30, 1))
sketch9.addConstraint(Sketcher.Constraint("Coincident", 30, 2, 31, 1))
sketch9.addConstraint(Sketcher.Constraint("Coincident", 31, 2, 32, 1))
sketch9.addConstraint(Sketcher.Constraint("Coincident", 32, 2, 33, 1))
sketch9.addConstraint(Sketcher.Constraint("Coincident", 33, 2, 34, 1))
sketch9.addConstraint(Sketcher.Constraint("Coincident", 34, 2, 35, 1))
sketch9.addConstraint(Sketcher.Constraint("Coincident", 35, 2, 36, 1))
sketch9.addConstraint(Sketcher.Constraint("Coincident", 36, 2, 37, 1))
sketch9.addConstraint(Sketcher.Constraint("Coincident", 37, 2, 38, 1))
sketch9.addConstraint(Sketcher.Constraint("Coincident", 38, 2, 39, 1))
sketch9.addConstraint(Sketcher.Constraint("Coincident", 39, 2, 40, 1))
sketch9.addConstraint(Sketcher.Constraint("Coincident", 40, 2, 41, 1))
sketch9.addConstraint(Sketcher.Constraint("Coincident", 41, 2, 42, 1))
sketch9.addConstraint(Sketcher.Constraint("Coincident", 42, 2, 43, 1))
sketch9.addConstraint(Sketcher.Constraint("Coincident", 43, 2, 44, 1))
sketch9.addConstraint(Sketcher.Constraint("Coincident", 44, 2, 45, 1))
sketch9.addConstraint(Sketcher.Constraint("Coincident", 45, 2, 46, 1))
sketch9.addConstraint(Sketcher.Constraint("Coincident", 46, 2, 47, 1))
sketch9.addConstraint(Sketcher.Constraint("Coincident", 47, 2, 48, 1))
sketch9.addConstraint(Sketcher.Constraint("Coincident", 48, 2, 49, 1))
sketch9.addConstraint(Sketcher.Constraint("Coincident", 49, 2, 50, 1))
sketch9.addConstraint(Sketcher.Constraint("Coincident", 50, 2, 51, 1))
sketch9.addConstraint(Sketcher.Constraint("Coincident", 51, 2, 26, 1))
sketch9.addConstraint(Sketcher.Constraint("Vertical", 0))
sketch9.addConstraint(Sketcher.Constraint("Horizontal", 2))
sketch9.addConstraint(Sketcher.Constraint("Horizontal", 5))
sketch9.addConstraint(Sketcher.Constraint("Horizontal", 8))
sketch9.addConstraint(Sketcher.Constraint("Horizontal", 11))
sketch9.addConstraint(Sketcher.Constraint("Vertical", 13))
sketch9.addConstraint(Sketcher.Constraint("Horizontal", 15))
sketch9.addConstraint(Sketcher.Constraint("Horizontal", 18))
sketch9.addConstraint(Sketcher.Constraint("Horizontal", 21))
sketch9.addConstraint(Sketcher.Constraint("Horizontal", 24))
sketch9.addConstraint(Sketcher.Constraint("Vertical", 26))
sketch9.addConstraint(Sketcher.Constraint("Horizontal", 28))
sketch9.addConstraint(Sketcher.Constraint("Horizontal", 31))
sketch9.addConstraint(Sketcher.Constraint("Horizontal", 34))
sketch9.addConstraint(Sketcher.Constraint("Horizontal", 37))
sketch9.addConstraint(Sketcher.Constraint("Vertical", 39))
sketch9.addConstraint(Sketcher.Constraint("Horizontal", 41))
sketch9.addConstraint(Sketcher.Constraint("Horizontal", 44))
sketch9.addConstraint(Sketcher.Constraint("Horizontal", 47))
sketch9.addConstraint(Sketcher.Constraint("Horizontal", 50))
sketch9.addConstraint(Sketcher.Constraint("Symmetric", 0, 2, 26, 2, -2))
sketch9.addConstraint(Sketcher.Constraint("Perpendicular", 1, 3))
sketch9.addConstraint(Sketcher.Constraint("Perpendicular", 3, 4))
sketch9.addConstraint(Sketcher.Constraint("Perpendicular", 4, 6))
sketch9.addConstraint(Sketcher.Constraint("Perpendicular", 6, 7))
sketch9.addConstraint(Sketcher.Constraint("Perpendicular", 7, 9))
sketch9.addConstraint(Sketcher.Constraint("Perpendicular", 9, 10))
sketch9.addConstraint(Sketcher.Constraint("Perpendicular", 10, 12))
sketch9.addConstraint(Sketcher.Constraint("Perpendicular", 12, 14))
sketch9.addConstraint(Sketcher.Constraint("Perpendicular", 14, 16))
sketch9.addConstraint(Sketcher.Constraint("Perpendicular", 16, 17))
sketch9.addConstraint(Sketcher.Constraint("Perpendicular", 17, 19))
sketch9.addConstraint(Sketcher.Constraint("Perpendicular", 19, 20))
sketch9.addConstraint(Sketcher.Constraint("Perpendicular", 20, 22))
sketch9.addConstraint(Sketcher.Constraint("Perpendicular", 22, 23))
sketch9.addConstraint(Sketcher.Constraint("Perpendicular", 23, 25))
sketch9.addConstraint(Sketcher.Constraint("Perpendicular", 25, 27))
sketch9.addConstraint(Sketcher.Constraint("Perpendicular", 27, 29))
sketch9.addConstraint(Sketcher.Constraint("Perpendicular", 29, 30))
sketch9.addConstraint(Sketcher.Constraint("Perpendicular", 30, 32))
sketch9.addConstraint(Sketcher.Constraint("Perpendicular", 32, 33))
sketch9.addConstraint(Sketcher.Constraint("Perpendicular", 33, 35))
sketch9.addConstraint(Sketcher.Constraint("Perpendicular", 35, 36))
sketch9.addConstraint(Sketcher.Constraint("Perpendicular", 36, 38))
sketch9.addConstraint(Sketcher.Constraint("Perpendicular", 38, 40))
sketch9.addConstraint(Sketcher.Constraint("Perpendicular", 40, 42))
sketch9.addConstraint(Sketcher.Constraint("Perpendicular", 42, 43))
sketch9.addConstraint(Sketcher.Constraint("Perpendicular", 43, 45))
sketch9.addConstraint(Sketcher.Constraint("Perpendicular", 45, 46))
sketch9.addConstraint(Sketcher.Constraint("Perpendicular", 46, 48))
sketch9.addConstraint(Sketcher.Constraint("Perpendicular", 48, 49))
sketch9.addConstraint(Sketcher.Constraint("Perpendicular", 49, 51))
sketch9.addConstraint(Sketcher.Constraint("Horizontal", 0, 2, 3, 2))
sketch9.addConstraint(Sketcher.Constraint("Horizontal", 2, 2, 4, 2))
sketch9.addConstraint(Sketcher.Constraint("Horizontal", 3, 2, 6, 2))
sketch9.addConstraint(Sketcher.Constraint("Horizontal", 5, 2, 7, 2))
sketch9.addConstraint(Sketcher.Constraint("Horizontal", 6, 2, 9, 2))
sketch9.addConstraint(Sketcher.Constraint("Horizontal", 8, 2, 10, 2))
sketch9.addConstraint(Sketcher.Constraint("Horizontal", 9, 2, 12, 2))
sketch9.addConstraint(Sketcher.Constraint("Horizontal", 13, 2, 16, 2))
sketch9.addConstraint(Sketcher.Constraint("Horizontal", 15, 2, 17, 2))
sketch9.addConstraint(Sketcher.Constraint("Horizontal", 16, 2, 19, 2))
sketch9.addConstraint(Sketcher.Constraint("Horizontal", 18, 2, 20, 2))
sketch9.addConstraint(Sketcher.Constraint("Horizontal", 19, 2, 22, 2))
sketch9.addConstraint(Sketcher.Constraint("Horizontal", 21, 2, 23, 2))
sketch9.addConstraint(Sketcher.Constraint("Horizontal", 22, 2, 25, 2))
sketch9.addConstraint(Sketcher.Constraint("Horizontal", 11, 2, 27, 2))
sketch9.addConstraint(Sketcher.Constraint("Horizontal", 26, 2, 29, 2))
sketch9.addConstraint(Sketcher.Constraint("Horizontal", 28, 2, 30, 2))
sketch9.addConstraint(Sketcher.Constraint("Horizontal", 29, 2, 32, 2))
sketch9.addConstraint(Sketcher.Constraint("Horizontal", 31, 2, 33, 2))
sketch9.addConstraint(Sketcher.Constraint("Horizontal", 32, 2, 35, 2))
sketch9.addConstraint(Sketcher.Constraint("Horizontal", 34, 2, 36, 2))
sketch9.addConstraint(Sketcher.Constraint("Horizontal", 35, 2, 38, 2))
sketch9.addConstraint(Sketcher.Constraint("Horizontal", 25, 2, 39, 2))
sketch9.addConstraint(Sketcher.Constraint("Horizontal", 24, 2, 40, 2))
sketch9.addConstraint(Sketcher.Constraint("Horizontal", 39, 2, 42, 2))
sketch9.addConstraint(Sketcher.Constraint("Horizontal", 41, 2, 43, 2))
sketch9.addConstraint(Sketcher.Constraint("Horizontal", 42, 2, 45, 2))
sketch9.addConstraint(Sketcher.Constraint("Horizontal", 44, 2, 46, 2))
sketch9.addConstraint(Sketcher.Constraint("Horizontal", 45, 2, 48, 2))
sketch9.addConstraint(Sketcher.Constraint("Horizontal", 47, 2, 49, 2))
sketch9.addConstraint(Sketcher.Constraint("Horizontal", 48, 2, 51, 2))
sketch9.addConstraint(Sketcher.Constraint("Vertical", 11, 2, 14, 2))
sketch9.addConstraint(Sketcher.Constraint("Vertical", 10, 2, 15, 2))
sketch9.addConstraint(Sketcher.Constraint("Vertical", 9, 2, 16, 2))
sketch9.addConstraint(Sketcher.Constraint("Vertical", 7, 2, 18, 2))
sketch9.addConstraint(Sketcher.Constraint("Vertical", 4, 2, 21, 2))
sketch9.addConstraint(Sketcher.Constraint("Vertical", 36, 2, 41, 2))
sketch9.addConstraint(Sketcher.Constraint("Vertical", 33, 2, 44, 2))
sketch9.addConstraint(Sketcher.Constraint("Vertical", 30, 2, 47, 2))
sketch9.addConstraint(Sketcher.Constraint("Equal", 2, 5))
sketch9.addConstraint(Sketcher.Constraint("Equal", 5, 8))
sketch9.addConstraint(Sketcher.Constraint("Equal", 8, 11))
sketch9.addConstraint(Sketcher.Constraint("Equal", 24, 28))
sketch9.addConstraint(Sketcher.Constraint("Equal", 28, 31))
sketch9.addConstraint(Sketcher.Constraint("Equal", 31, 34))
sketch9.addConstraint(Sketcher.Constraint("Equal", 34, 37))
sketch9.addConstraint(Sketcher.Constraint("DistanceX", -1, 1, 0, 2, Q("30 mm")))
sketch9.addConstraint(Sketcher.Constraint("DistanceY", 1, 2, -1, 1, Q("8 mm")))
sketch9.addConstraint(Sketcher.Constraint("DistanceX", -1, 1, 6, 2, Q("25 mm")))
sketch9.addConstraint(Sketcher.Constraint("DistanceY", 14, 2, -1, 1, Q("4 mm")))
sketch9.addConstraint(Sketcher.Constraint("DistanceX", 2, 2, 2, 1, Q("1.25 mm")))
pad7 = doc.addObject("PartDesign::Pad", "Pad006")
body.addObject(pad7)
pad7.Profile = sketch9
pad7.Length = 3
pad7.Reversed = True

# Sketch on XY plane
sketch10 = doc.addObject("Sketcher::SketchObject", "Sketch009")
body.addObject(sketch10)
sketch10.AttachmentSupport = (doc.XY_Plane, [""])
sketch10.MapMode = "FlatFace"
sketch10.AttachmentOffset = App.Placement(V(0, 0, -3), App.Rotation())
sketch10.addGeometry(Part.Circle(V(28.75, -5.25, 0), V(0, 0, 1), 0.25), False)
sketch10.addGeometry(Part.Circle(V(26.25, -5.25, 0), V(0, 0, 1), 0.25), False)
sketch10.addGeometry(Part.Circle(V(23.75, -5.25, 0), V(0, 0, 1), 0.25), False)
sketch10.addGeometry(Part.Circle(V(21.25, -5.25, 0), V(0, 0, 1), 0.25), False)
sketch10.addGeometry(Part.Circle(V(21.25, -6.75, 0), V(0, 0, 1), 0.25), False)
sketch10.addGeometry(Part.Circle(V(23.75, -6.75, 0), V(0, 0, 1), 0.25), False)
sketch10.addGeometry(Part.Circle(V(26.25, -6.75, 0), V(0, 0, 1), 0.25), False)
sketch10.addGeometry(Part.Circle(V(28.75, -6.75, 0), V(0, 0, 1), 0.25), False)
sketch10.addGeometry(Part.Circle(V(-31.25, -5.25, 0), V(0, 0, 1), 0.25), False)
sketch10.addGeometry(Part.Circle(V(-33.75, -5.25, 0), V(0, 0, 1), 0.25), False)
sketch10.addGeometry(Part.Circle(V(-36.25, -5.25, 0), V(0, 0, 1), 0.25), False)
sketch10.addGeometry(Part.Circle(V(-38.75, -5.25, 0), V(0, 0, 1), 0.25), False)
sketch10.addGeometry(Part.Circle(V(-38.75, -6.75, 0), V(0, 0, 1), 0.25), False)
sketch10.addGeometry(Part.Circle(V(-36.25, -6.75, 0), V(0, 0, 1), 0.25), False)
sketch10.addGeometry(Part.Circle(V(-33.75, -6.75, 0), V(0, 0, 1), 0.25), False)
sketch10.addGeometry(Part.Circle(V(-31.25, -6.75, 0), V(0, 0, 1), 0.25), False)
sketch10.addConstraint(Sketcher.Constraint("Equal", 0, 1))
sketch10.addConstraint(Sketcher.Constraint("Equal", 1, 2))
sketch10.addConstraint(Sketcher.Constraint("Equal", 2, 3))
sketch10.addConstraint(Sketcher.Constraint("Equal", 3, 4))
sketch10.addConstraint(Sketcher.Constraint("Equal", 4, 5))
sketch10.addConstraint(Sketcher.Constraint("Equal", 5, 6))
sketch10.addConstraint(Sketcher.Constraint("Equal", 6, 7))
sketch10.addConstraint(Sketcher.Constraint("Equal", 7, 8))
sketch10.addConstraint(Sketcher.Constraint("Equal", 8, 9))
sketch10.addConstraint(Sketcher.Constraint("Equal", 9, 10))
sketch10.addConstraint(Sketcher.Constraint("Equal", 10, 11))
sketch10.addConstraint(Sketcher.Constraint("Equal", 11, 12))
sketch10.addConstraint(Sketcher.Constraint("Equal", 12, 13))
sketch10.addConstraint(Sketcher.Constraint("Equal", 13, 14))
sketch10.addConstraint(Sketcher.Constraint("Equal", 14, 15))
sketch10.addConstraint(Sketcher.Constraint("Horizontal", 0, 3, 1, 3))
sketch10.addConstraint(Sketcher.Constraint("Horizontal", 1, 3, 2, 3))
sketch10.addConstraint(Sketcher.Constraint("Horizontal", 2, 3, 3, 3))
sketch10.addConstraint(Sketcher.Constraint("Horizontal", 4, 3, 5, 3))
sketch10.addConstraint(Sketcher.Constraint("Horizontal", 5, 3, 6, 3))
sketch10.addConstraint(Sketcher.Constraint("Horizontal", 6, 3, 7, 3))
sketch10.addConstraint(Sketcher.Constraint("Horizontal", 3, 3, 8, 3))
sketch10.addConstraint(Sketcher.Constraint("Horizontal", 8, 3, 9, 3))
sketch10.addConstraint(Sketcher.Constraint("Horizontal", 9, 3, 10, 3))
sketch10.addConstraint(Sketcher.Constraint("Horizontal", 10, 3, 11, 3))
sketch10.addConstraint(Sketcher.Constraint("Horizontal", 7, 3, 12, 3))
sketch10.addConstraint(Sketcher.Constraint("Horizontal", 12, 3, 13, 3))
sketch10.addConstraint(Sketcher.Constraint("Horizontal", 13, 3, 14, 3))
sketch10.addConstraint(Sketcher.Constraint("Horizontal", 14, 3, 15, 3))
sketch10.addConstraint(Sketcher.Constraint("Vertical", 3, 3, 4, 3))
sketch10.addConstraint(Sketcher.Constraint("Vertical", 2, 3, 5, 3))
sketch10.addConstraint(Sketcher.Constraint("Vertical", 1, 3, 6, 3))
sketch10.addConstraint(Sketcher.Constraint("Vertical", 0, 3, 7, 3))
sketch10.addConstraint(Sketcher.Constraint("Vertical", 11, 3, 12, 3))
sketch10.addConstraint(Sketcher.Constraint("Vertical", 10, 3, 13, 3))
sketch10.addConstraint(Sketcher.Constraint("Vertical", 9, 3, 14, 3))
sketch10.addConstraint(Sketcher.Constraint("Vertical", 8, 3, 15, 3))
sketch10.addConstraint(Sketcher.Constraint("Diameter", 0, Q("0.5 mm")))
sketch10.addConstraint(Sketcher.Constraint("DistanceX", 2, 3, 0, 3, Q("5 mm")))
sketch10.addConstraint(Sketcher.Constraint("DistanceX", 3, 3, 1, 3, Q("5 mm")))
sketch10.addConstraint(Sketcher.Constraint("DistanceX", 8, 3, 2, 3, Q("55 mm")))
sketch10.addConstraint(Sketcher.Constraint("DistanceX", 9, 3, 3, 3, Q("55 mm")))
sketch10.addConstraint(Sketcher.Constraint("DistanceX", 10, 3, 8, 3, Q("5 mm")))
sketch10.addConstraint(Sketcher.Constraint("DistanceX", 11, 3, 9, 3, Q("5 mm")))
sketch10.addConstraint(Sketcher.Constraint("DistanceX", 1, 3, 0, 3, Q("2.5 mm")))
sketch10.addConstraint(Sketcher.Constraint("DistanceY", 4, 3, 3, 3, Q("1.5 mm")))
sketch10.addConstraint(Sketcher.Constraint("DistanceX", -1, 1, 0, 3, Q("28.75 mm")))
sketch10.addConstraint(Sketcher.Constraint("DistanceY", 0, 3, -1, 1, Q("5.25 mm")))
pad8 = doc.addObject("PartDesign::Pad", "Pad007")
body.addObject(pad8)
pad8.Profile = sketch10
pad8.Length = 7
pad8.Reversed = True

doc.recompute()
